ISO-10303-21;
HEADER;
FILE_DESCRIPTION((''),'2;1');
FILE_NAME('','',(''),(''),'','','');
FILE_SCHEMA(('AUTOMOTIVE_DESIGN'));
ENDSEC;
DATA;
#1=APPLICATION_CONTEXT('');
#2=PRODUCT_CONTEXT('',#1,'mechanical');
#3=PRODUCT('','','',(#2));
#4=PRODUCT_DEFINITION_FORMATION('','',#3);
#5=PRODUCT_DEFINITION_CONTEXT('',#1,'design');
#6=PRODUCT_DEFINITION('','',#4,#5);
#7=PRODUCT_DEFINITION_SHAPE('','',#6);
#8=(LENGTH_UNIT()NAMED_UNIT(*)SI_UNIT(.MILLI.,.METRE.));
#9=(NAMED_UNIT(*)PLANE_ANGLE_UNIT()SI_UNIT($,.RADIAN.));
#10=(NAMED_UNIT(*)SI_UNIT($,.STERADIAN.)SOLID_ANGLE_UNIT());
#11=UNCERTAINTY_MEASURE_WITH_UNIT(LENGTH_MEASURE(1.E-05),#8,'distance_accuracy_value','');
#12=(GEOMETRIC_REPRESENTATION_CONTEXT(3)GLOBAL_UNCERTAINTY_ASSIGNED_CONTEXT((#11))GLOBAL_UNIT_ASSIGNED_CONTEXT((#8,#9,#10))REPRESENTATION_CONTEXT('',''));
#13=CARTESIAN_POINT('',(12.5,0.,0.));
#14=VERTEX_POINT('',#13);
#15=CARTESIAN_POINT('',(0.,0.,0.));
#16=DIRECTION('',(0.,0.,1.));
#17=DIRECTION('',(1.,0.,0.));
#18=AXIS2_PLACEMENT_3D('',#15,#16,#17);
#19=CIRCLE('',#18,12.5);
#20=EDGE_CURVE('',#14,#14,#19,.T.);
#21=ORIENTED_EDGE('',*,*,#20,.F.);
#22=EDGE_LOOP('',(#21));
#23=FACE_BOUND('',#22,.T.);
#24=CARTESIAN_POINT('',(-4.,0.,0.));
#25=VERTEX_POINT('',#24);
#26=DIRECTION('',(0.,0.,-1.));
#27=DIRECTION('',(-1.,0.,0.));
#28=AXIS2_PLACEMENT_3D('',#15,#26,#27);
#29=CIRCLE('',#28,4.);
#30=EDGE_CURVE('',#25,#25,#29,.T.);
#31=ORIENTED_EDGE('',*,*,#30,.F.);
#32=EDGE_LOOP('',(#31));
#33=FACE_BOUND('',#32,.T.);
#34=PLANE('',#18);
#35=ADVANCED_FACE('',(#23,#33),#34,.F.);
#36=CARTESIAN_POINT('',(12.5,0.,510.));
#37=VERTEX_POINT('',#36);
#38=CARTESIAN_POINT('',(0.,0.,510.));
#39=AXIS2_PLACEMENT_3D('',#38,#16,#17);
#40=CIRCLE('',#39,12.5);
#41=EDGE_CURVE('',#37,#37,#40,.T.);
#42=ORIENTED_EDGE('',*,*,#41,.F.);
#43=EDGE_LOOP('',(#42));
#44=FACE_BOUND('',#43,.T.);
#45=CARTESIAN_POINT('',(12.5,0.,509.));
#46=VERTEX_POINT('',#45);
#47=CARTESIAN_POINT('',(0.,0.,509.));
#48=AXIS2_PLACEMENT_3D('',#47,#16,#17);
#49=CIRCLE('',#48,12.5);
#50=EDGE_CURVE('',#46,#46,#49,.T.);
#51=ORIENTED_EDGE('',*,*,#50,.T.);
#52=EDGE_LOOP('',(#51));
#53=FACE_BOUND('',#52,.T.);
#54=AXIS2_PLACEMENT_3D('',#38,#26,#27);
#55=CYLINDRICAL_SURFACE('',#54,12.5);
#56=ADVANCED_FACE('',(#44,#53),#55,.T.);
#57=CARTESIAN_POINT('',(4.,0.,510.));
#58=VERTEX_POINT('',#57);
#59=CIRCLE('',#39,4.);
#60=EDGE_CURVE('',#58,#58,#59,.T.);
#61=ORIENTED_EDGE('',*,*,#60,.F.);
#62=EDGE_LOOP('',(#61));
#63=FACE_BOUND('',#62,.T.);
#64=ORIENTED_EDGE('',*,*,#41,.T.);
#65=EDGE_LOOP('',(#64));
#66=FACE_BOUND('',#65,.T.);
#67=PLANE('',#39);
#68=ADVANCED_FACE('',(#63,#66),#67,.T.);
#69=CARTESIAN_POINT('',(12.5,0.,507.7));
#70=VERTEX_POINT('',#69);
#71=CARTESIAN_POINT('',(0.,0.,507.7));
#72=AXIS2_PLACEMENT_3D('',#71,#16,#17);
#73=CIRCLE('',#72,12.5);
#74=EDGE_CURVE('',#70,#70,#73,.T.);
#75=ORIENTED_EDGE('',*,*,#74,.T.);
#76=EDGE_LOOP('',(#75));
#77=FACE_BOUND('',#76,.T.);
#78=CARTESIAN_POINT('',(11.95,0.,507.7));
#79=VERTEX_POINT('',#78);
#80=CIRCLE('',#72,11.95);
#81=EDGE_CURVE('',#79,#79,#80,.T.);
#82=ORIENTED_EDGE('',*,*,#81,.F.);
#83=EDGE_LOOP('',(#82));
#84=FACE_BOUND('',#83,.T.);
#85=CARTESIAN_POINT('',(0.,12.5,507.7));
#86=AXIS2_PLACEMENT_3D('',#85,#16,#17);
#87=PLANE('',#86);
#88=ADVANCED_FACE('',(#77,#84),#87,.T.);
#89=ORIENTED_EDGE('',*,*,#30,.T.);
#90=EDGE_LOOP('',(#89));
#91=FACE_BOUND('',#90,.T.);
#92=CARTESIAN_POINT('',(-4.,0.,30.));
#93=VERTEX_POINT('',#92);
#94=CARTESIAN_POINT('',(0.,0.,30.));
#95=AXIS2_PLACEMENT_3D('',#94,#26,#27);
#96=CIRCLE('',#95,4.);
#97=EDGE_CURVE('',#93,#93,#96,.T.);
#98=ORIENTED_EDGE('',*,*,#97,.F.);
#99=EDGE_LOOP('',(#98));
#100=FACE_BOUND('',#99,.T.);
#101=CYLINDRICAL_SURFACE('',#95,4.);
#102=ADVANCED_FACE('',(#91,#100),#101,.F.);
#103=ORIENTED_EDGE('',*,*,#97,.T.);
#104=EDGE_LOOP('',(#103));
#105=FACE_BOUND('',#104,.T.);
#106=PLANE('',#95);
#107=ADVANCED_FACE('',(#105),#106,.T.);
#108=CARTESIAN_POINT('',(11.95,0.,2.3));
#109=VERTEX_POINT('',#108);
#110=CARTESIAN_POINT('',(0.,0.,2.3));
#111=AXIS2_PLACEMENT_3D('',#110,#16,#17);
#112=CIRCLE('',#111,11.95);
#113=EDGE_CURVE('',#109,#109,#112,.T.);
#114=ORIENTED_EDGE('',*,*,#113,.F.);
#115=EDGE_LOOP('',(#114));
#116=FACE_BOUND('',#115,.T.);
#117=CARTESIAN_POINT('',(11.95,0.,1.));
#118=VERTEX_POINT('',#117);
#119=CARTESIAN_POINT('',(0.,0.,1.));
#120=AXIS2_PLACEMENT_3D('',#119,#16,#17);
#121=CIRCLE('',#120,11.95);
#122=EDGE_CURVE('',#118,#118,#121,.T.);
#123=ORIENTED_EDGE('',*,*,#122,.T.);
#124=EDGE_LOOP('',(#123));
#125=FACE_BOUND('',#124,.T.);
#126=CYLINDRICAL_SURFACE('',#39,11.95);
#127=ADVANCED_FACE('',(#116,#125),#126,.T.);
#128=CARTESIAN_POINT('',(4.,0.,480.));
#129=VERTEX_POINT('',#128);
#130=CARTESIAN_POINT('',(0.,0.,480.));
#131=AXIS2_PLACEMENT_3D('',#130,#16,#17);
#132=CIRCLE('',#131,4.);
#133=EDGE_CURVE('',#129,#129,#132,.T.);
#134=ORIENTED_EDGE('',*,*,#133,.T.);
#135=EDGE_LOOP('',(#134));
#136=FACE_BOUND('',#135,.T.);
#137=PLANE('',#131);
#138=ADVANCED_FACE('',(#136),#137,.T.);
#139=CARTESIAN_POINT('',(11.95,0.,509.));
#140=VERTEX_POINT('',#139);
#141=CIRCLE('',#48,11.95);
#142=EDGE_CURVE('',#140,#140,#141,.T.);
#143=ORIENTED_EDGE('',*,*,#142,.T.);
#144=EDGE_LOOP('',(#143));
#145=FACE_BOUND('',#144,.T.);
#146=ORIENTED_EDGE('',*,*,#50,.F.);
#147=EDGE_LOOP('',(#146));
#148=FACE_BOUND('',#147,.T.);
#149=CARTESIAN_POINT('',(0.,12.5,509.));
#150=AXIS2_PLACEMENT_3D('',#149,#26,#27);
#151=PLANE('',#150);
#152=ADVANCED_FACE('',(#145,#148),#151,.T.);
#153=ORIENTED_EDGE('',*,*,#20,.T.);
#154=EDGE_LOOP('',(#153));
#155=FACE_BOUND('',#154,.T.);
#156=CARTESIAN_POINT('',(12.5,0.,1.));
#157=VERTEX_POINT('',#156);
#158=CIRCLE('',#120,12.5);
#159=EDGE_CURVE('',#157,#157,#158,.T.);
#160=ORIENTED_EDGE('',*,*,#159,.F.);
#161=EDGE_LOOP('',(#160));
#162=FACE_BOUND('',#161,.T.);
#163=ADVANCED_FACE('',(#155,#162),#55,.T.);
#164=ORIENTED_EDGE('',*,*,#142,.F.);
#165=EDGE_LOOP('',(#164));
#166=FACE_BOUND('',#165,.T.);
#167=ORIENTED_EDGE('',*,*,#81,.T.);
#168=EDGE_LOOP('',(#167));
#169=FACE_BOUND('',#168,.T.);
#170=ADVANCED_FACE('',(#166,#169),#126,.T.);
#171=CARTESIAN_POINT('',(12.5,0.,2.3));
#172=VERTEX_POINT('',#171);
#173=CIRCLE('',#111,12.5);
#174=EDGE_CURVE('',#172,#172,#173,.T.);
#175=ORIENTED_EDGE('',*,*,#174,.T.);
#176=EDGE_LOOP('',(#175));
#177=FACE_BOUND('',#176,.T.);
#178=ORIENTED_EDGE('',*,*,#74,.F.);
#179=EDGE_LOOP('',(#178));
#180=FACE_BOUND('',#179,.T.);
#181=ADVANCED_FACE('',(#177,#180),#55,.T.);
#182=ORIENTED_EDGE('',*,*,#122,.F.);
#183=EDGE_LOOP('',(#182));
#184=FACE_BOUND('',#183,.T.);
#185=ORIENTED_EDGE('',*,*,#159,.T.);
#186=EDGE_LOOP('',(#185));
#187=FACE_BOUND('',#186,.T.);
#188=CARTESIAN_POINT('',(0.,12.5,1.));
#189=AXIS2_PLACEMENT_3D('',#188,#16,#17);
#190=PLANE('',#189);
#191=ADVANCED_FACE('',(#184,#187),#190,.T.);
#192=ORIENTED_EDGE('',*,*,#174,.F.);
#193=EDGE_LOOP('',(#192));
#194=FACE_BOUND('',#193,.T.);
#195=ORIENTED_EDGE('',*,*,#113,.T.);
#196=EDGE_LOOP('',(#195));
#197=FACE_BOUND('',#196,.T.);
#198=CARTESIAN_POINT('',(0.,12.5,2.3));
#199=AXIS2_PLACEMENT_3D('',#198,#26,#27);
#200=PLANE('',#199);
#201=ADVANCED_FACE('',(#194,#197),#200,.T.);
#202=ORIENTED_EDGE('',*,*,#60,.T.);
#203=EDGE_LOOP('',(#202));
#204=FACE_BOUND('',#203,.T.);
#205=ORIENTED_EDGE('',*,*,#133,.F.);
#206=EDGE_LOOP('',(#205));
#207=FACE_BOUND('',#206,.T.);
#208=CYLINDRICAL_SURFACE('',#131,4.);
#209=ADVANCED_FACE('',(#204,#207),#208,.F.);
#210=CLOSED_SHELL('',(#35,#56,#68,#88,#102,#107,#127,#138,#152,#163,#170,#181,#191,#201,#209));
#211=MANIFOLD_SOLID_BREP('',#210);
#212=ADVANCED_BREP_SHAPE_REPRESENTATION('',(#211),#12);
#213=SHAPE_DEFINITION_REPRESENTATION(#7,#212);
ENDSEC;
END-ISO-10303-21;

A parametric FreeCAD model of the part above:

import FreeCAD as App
import Part
import Sketcher
Q = App.Units.Quantity

doc = App.newDocument("Part")
body = doc.addObject("PartDesign::Body", "Body")

sketch1 = doc.addObject("Sketcher::SketchObject", "Sketch")
body.addObject(sketch1)
sketch1.AttachmentSupport = (doc.XY_Plane, [""])
sketch1.MapMode = "FlatFace"
sketch1.addGeometry(Part.Circle(App.Vector(0, 0, 0), App.Vector(0, 0, 1), 12.5), False)
sketch1.addConstraint(Sketcher.Constraint("Coincident", 0, 3, -1, 1))
sketch1.addConstraint(Sketcher.Constraint("Diameter", 0, Q("25 mm")))
pad1 = doc.addObject("PartDesign::Pad", "Pad")
body.addObject(pad1)
pad1.Profile = sketch1
pad1.Length = 510

sketch2 = doc.addObject("Sketcher::SketchObject", "Sketch001")
body.addObject(sketch2)
sketch2.AttachmentSupport = (doc.XY_Plane, [""])
sketch2.MapMode = "FlatFace"
sketch2.AttachmentOffset = App.Placement(App.Vector(0, 0, 510), App.Rotation())
sketch2.addGeometry(Part.Circle(App.Vector(0, 0, 0), App.Vector(0, 0, 1), 4), False)
sketch2.addConstraint(Sketcher.Constraint("Coincident", 0, 3, -1, 1))
sketch2.addConstraint(Sketcher.Constraint("Diameter", 0, Q("8 mm")))
pocket1 = doc.addObject("PartDesign::Pocket", "Pocket")
body.addObject(pocket1)
pocket1.Profile = sketch2
pocket1.Length = 30

sketch3 = doc.addObject("Sketcher::SketchObject", "Sketch002")
body.addObject(sketch3)
sketch3.AttachmentSupport = (doc.XY_Plane, [""])
sketch3.MapMode = "FlatFace"
sketch3.AttachmentOffset = App.Placement(App.Vector(0, 0, 30), App.Rotation())
sketch3.addGeometry(Part.Circle(App.Vector(0, 0, 0), App.Vector(0, 0, 1), 4), False)
sketch3.addConstraint(Sketcher.Constraint("Coincident", 0, 3, -1, 1))
sketch3.addConstraint(Sketcher.Constraint("Diameter", 0, Q("8 mm")))
pocket2 = doc.addObject("PartDesign::Pocket", "Pocket001")
body.addObject(pocket2)
pocket2.Profile = sketch3
pocket2.Length = 30

sketch4 = doc.addObject("Sketcher::SketchObject", "Sketch003")
body.addObject(sketch4)
sketch4.AttachmentSupport = (doc.YZ_Plane, [""])
sketch4.MapMode = "FlatFace"
sketch4.addGeometry(Part.LineSegment(App.Vector(12.5, 509, 0), App.Vector(11.95, 509, 0)), False)
sketch4.addGeometry(Part.LineSegment(App.Vector(11.95, 509, 0), App.Vector(11.95, 507.7, 0)), False)
sketch4.addGeometry(Part.LineSegment(App.Vector(11.95, 507.7, 0), App.Vector(12.5, 507.7, 0)), False)
sketch4.addGeometry(Part.LineSegment(App.Vector(12.5, 507.7, 0), App.Vector(12.5, 509, 0)), False)
sketch4.addGeometry(Part.LineSegment(App.Vector(12.5, 2.3, 0), App.Vector(11.95, 2.3, 0)), False)
sketch4.addGeometry(Part.LineSegment(App.Vector(11.95, 2.3, 0), App.Vector(11.95, 1, 0)), False)
sketch4.addGeometry(Part.LineSegment(App.Vector(11.95, 1, 0), App.Vector(12.5, 1, 0)), False)
sketch4.addGeometry(Part.LineSegment(App.Vector(12.5, 1, 0), App.Vector(12.5, 2.3, 0)), False)
sketch4.addConstraint(Sketcher.Constraint("Coincident", 0, 2, 1, 1))
sketch4.addConstraint(Sketcher.Constraint("Coincident", 1, 2, 2, 1))
sketch4.addConstraint(Sketcher.Constraint("Coincident", 2, 2, 3, 1))
sketch4.addConstraint(Sketcher.Constraint("Coincident", 3, 2, 0, 1))
sketch4.addConstraint(Sketcher.Constraint("Coincident", 4, 2, 5, 1))
sketch4.addConstraint(Sketcher.Constraint("Coincident", 5, 2, 6, 1))
sketch4.addConstraint(Sketcher.Constraint("Coincident", 6, 2, 7, 1))
sketch4.addConstraint(Sketcher.Constraint("Coincident", 7, 2, 4, 1))
sketch4.addConstraint(Sketcher.Constraint("Horizontal", 0))
sketch4.addConstraint(Sketcher.Constraint("Vertical", 1))
sketch4.addConstraint(Sketcher.Constraint("Horizontal", 2))
sketch4.addConstraint(Sketcher.Constraint("Vertical", 3))
sketch4.addConstraint(Sketcher.Constraint("Horizontal", 4))
sketch4.addConstraint(Sketcher.Constraint("Vertical", 5))
sketch4.addConstraint(Sketcher.Constraint("Horizontal", 6))
sketch4.addConstraint(Sketcher.Constraint("Vertical", 7))
sketch4.addConstraint(Sketcher.Constraint("Vertical", 1, 2, 4, 2))
sketch4.addConstraint(Sketcher.Constraint("Vertical", 3, 2, 6, 2))
sketch4.addConstraint(Sketcher.Constraint("Equal", 3, 5))
sketch4.addConstraint(Sketcher.Constraint("DistanceY", 1, 2, 1, 1, Q("1.3 mm")))
sketch4.addConstraint(Sketcher.Constraint("DistanceY", -1, 1, 0, 2, Q("509 mm")))
sketch4.addConstraint(Sketcher.Constraint("DistanceY", -1, 1, 5, 2, Q("1 mm")))
sketch4.addConstraint(Sketcher.Constraint("DistanceX", 0, 2, 0, 1, Q("0.55 mm")))
sketch4.addConstraint(Sketcher.Constraint("DistanceX", -1, 1, 2, 2, Q("12.5 mm")))
groove = doc.addObject("PartDesign::Groove", "Groove")
body.addObject(groove)
groove.Profile = sketch4
groove.ReferenceAxis = (sketch4, ["V_Axis"])
groove.Angle = 360

doc.recompute()
